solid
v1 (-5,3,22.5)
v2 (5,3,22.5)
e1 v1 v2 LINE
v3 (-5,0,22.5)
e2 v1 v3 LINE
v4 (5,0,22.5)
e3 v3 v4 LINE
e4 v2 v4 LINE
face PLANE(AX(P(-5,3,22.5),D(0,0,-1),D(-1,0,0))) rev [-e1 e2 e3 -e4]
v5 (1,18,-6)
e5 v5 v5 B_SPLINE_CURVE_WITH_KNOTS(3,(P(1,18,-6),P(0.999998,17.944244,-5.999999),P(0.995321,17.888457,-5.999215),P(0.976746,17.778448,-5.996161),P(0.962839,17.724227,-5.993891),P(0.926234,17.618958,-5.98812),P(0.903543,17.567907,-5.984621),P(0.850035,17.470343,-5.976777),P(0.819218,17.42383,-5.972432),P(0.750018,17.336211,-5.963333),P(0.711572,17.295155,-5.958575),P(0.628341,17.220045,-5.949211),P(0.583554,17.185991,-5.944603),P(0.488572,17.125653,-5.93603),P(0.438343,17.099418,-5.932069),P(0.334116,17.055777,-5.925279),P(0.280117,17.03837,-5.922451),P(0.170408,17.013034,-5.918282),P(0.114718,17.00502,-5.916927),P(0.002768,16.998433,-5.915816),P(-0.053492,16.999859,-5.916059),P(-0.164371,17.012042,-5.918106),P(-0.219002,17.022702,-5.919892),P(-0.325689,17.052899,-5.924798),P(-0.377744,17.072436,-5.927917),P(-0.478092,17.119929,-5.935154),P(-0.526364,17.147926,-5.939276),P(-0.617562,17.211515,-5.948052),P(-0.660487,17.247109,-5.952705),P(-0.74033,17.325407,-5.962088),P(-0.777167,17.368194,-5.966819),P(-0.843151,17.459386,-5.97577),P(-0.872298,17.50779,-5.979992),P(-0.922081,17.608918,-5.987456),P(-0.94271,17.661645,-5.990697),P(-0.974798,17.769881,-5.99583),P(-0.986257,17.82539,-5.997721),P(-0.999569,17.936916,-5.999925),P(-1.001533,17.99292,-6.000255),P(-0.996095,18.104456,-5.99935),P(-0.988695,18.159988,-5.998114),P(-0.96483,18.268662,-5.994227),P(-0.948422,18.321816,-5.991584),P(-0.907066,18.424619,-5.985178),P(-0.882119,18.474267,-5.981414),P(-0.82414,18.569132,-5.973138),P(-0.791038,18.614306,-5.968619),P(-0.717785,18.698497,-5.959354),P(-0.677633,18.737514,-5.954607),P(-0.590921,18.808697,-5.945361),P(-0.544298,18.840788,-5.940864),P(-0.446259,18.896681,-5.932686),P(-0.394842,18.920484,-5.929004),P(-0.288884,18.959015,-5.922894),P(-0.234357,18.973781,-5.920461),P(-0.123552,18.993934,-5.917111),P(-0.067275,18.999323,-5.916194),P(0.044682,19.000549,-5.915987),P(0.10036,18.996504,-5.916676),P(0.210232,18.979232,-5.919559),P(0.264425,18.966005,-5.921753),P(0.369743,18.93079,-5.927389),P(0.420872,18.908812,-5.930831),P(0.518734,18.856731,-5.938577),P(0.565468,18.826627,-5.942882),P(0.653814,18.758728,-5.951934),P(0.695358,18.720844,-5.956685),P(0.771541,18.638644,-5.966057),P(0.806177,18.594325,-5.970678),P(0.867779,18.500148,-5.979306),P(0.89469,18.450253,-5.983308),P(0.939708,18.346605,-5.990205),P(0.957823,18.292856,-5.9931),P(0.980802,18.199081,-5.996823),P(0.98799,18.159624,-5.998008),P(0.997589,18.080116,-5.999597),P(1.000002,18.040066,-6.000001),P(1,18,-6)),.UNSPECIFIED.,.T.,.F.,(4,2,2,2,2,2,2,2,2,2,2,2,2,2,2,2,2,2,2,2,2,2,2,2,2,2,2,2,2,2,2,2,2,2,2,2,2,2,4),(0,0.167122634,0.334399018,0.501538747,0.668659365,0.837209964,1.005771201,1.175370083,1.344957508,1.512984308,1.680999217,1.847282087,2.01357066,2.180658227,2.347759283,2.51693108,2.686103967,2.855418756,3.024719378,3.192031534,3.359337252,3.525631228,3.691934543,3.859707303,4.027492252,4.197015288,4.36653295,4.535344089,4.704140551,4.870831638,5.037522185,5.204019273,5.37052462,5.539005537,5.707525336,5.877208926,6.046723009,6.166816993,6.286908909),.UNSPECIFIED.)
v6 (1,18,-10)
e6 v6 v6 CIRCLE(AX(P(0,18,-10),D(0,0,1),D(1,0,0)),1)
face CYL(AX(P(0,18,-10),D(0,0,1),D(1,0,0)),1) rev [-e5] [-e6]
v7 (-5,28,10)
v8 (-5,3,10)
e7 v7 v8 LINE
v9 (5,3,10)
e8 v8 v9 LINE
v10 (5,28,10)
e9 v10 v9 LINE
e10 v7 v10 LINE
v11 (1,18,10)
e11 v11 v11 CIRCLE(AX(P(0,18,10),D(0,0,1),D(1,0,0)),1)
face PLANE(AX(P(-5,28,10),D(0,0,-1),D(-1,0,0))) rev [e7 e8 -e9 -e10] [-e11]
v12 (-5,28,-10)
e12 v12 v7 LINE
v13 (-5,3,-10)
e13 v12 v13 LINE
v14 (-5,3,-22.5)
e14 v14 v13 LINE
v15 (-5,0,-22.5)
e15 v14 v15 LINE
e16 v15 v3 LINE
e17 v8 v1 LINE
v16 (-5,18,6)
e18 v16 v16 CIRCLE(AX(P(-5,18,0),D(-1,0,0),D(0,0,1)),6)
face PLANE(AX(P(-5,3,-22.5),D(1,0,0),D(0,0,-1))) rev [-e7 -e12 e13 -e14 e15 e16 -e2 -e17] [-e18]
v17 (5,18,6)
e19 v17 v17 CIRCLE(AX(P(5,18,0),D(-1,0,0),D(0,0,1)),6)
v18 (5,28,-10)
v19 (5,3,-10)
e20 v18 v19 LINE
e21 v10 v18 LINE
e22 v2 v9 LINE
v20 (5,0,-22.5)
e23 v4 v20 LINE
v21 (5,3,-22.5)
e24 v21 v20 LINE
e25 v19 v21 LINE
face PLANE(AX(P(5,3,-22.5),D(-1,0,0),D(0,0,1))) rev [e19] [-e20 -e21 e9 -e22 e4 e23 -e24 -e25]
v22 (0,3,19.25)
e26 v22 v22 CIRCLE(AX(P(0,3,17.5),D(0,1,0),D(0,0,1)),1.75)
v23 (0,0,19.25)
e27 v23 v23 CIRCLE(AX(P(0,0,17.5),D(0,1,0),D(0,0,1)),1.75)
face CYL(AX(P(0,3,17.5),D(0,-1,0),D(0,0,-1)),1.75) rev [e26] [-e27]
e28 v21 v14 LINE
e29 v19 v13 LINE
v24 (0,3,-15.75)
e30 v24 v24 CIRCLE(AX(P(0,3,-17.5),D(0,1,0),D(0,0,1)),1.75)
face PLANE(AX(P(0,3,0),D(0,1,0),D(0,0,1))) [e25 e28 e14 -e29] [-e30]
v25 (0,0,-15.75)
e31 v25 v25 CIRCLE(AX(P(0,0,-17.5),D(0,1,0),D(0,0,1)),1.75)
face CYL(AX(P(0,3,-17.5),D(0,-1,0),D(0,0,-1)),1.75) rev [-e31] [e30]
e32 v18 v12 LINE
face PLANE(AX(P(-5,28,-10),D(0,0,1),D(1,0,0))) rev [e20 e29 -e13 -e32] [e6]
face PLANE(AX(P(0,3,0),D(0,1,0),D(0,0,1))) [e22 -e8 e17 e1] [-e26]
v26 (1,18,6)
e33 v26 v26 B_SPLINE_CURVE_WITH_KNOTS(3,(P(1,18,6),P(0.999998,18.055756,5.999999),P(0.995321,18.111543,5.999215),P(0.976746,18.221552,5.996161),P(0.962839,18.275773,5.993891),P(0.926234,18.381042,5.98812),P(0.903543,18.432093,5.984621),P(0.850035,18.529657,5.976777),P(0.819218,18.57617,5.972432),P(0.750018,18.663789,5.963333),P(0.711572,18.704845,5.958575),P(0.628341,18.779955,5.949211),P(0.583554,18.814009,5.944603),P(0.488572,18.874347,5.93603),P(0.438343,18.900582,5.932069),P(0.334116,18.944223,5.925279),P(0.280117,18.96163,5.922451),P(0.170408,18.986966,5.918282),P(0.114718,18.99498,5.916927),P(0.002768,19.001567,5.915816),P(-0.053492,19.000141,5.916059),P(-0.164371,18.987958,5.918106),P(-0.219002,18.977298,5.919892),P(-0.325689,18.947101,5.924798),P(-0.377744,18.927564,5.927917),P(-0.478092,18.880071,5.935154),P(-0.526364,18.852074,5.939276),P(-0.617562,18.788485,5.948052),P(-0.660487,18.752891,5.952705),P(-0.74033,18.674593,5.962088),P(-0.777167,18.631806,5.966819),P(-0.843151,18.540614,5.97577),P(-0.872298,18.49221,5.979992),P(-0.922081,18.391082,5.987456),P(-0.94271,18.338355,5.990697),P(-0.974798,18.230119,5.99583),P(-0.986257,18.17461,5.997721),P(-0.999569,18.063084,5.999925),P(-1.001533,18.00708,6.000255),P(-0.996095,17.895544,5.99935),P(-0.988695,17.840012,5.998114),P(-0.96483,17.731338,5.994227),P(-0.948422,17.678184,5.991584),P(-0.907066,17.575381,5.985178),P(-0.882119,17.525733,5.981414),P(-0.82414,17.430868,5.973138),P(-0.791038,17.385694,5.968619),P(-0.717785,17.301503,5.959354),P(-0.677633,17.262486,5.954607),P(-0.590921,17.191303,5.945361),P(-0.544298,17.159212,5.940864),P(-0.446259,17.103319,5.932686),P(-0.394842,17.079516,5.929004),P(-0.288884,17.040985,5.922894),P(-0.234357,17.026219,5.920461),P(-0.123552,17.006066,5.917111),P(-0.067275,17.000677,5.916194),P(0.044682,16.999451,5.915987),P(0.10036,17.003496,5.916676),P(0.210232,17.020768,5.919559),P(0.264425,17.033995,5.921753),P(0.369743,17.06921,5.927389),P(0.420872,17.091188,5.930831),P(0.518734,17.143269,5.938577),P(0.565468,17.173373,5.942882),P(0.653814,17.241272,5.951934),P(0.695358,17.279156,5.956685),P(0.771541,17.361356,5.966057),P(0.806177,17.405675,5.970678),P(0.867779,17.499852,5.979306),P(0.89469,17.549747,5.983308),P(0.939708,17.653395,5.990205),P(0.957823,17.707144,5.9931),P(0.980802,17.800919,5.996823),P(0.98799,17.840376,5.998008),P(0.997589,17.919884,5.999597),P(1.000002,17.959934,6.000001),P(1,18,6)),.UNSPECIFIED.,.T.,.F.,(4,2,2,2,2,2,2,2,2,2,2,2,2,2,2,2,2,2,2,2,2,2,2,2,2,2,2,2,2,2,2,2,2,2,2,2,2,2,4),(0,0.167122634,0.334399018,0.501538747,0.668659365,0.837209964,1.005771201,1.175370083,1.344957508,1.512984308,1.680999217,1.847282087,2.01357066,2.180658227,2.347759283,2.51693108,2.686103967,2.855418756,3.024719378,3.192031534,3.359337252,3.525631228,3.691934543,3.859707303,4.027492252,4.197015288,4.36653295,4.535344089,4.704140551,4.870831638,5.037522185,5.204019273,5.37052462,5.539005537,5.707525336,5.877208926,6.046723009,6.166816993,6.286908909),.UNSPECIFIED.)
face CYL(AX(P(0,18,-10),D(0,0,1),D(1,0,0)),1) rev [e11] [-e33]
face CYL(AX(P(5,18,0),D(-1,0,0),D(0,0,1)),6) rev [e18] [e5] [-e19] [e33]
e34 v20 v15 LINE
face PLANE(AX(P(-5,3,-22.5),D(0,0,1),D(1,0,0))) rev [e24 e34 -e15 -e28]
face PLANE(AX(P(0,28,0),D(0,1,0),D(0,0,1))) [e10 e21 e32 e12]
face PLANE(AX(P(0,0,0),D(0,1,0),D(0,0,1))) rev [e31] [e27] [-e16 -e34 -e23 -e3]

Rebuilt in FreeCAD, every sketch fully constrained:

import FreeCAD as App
import Part
import Sketcher
Q = App.Units.Quantity

doc = App.newDocument("Part")
body = doc.addObject("PartDesign::Body", "Body")

# Sketch on XZ plane
sketch1 = body.newObject("Sketcher::SketchObject", "Sketch")
sketch1.AttachmentSupport = (doc.getObject("XZ_Plane"), [""])
sketch1.MapMode = "FlatFace"
sketch1.addGeometry([
    Part.LineSegment(App.Vector(-5, -22.5, 0), App.Vector(-5, 22.5, 0)),  # 0
    Part.LineSegment(App.Vector(-5, 22.5, 0), App.Vector(5, 22.5, 0)),  # 1
    Part.LineSegment(App.Vector(5, 22.5, 0), App.Vector(5, -22.5, 0)),  # 2
    Part.LineSegment(App.Vector(5, -22.5, 0), App.Vector(-5, -22.5, 0)),  # 3
    Part.Circle(App.Vector(0, 17.5, 0), App.Vector(0, 0, 1), 1.8),  # 4
    Part.Circle(App.Vector(0, -17.5, 0), App.Vector(0, 0, 1), 1.8),  # 5
], False)
sketch1.addConstraint([
    Sketcher.Constraint("Coincident", 0, 2, 1, 1),
    Sketcher.Constraint("Coincident", 1, 2, 2, 1),
    Sketcher.Constraint("Coincident", 2, 2, 3, 1),
    Sketcher.Constraint("Coincident", 3, 2, 0, 1),
    Sketcher.Constraint("Vertical", 0),
    Sketcher.Constraint("Horizontal", 1),
    Sketcher.Constraint("Vertical", 2),
    Sketcher.Constraint("Horizontal", 3),
    Sketcher.Constraint("Equal", 4, 5),
    Sketcher.Constraint("Symmetric", 4, 3, 5, 3, -1, 1),
    Sketcher.Constraint("Symmetric", 0, 2, 2, 2, -1, 1),
    Sketcher.Constraint("PointOnObject", 4, 3, -2),
    Sketcher.Constraint("Diameter", 4, Q("3.5 mm")),
    Sketcher.Constraint("DistanceX", 1, 1, 1, 2, Q("10 mm")),
    Sketcher.Constraint("DistanceY", 0, 1, 0, 2, Q("45 mm")),
    Sketcher.Constraint("DistanceY", 5, 3, 4, 3, Q("35 mm")),
])
pad1 = body.newObject("PartDesign::Pad", "Pad")
pad1.Profile = sketch1
pad1.Length = 3
pad1.Reversed = True

# Sketch on XZ plane
sketch2 = body.newObject("Sketcher::SketchObject", "Sketch001")
sketch2.AttachmentSupport = (doc.getObject("XZ_Plane"), [""])
sketch2.MapMode = "FlatFace"
sketch2.AttachmentOffset = App.Placement(App.Vector(0, 0, -3), App.Rotation())
sketch2.addGeometry([
    Part.LineSegment(App.Vector(-5, -10, 0), App.Vector(-5, 10, 0)),
    Part.LineSegment(App.Vector(-5, 10, 0), App.Vector(5, 10, 0)),
    Part.LineSegment(App.Vector(5, 10, 0), App.Vector(5, -10, 0)),
    Part.LineSegment(App.Vector(5, -10, 0), App.Vector(-5, -10, 0)),
], False)
sketch2.addConstraint([
    Sketcher.Constraint("Coincident", 0, 2, 1, 1),
    Sketcher.Constraint("Coincident", 1, 2, 2, 1),
    Sketcher.Constraint("Coincident", 2, 2, 3, 1),
    Sketcher.Constraint("Coincident", 3, 2, 0, 1),
    Sketcher.Constraint("Vertical", 0),
    Sketcher.Constraint("Horizontal", 1),
    Sketcher.Constraint("Vertical", 2),
    Sketcher.Constraint("Horizontal", 3),
    Sketcher.Constraint("Symmetric", 0, 2, 2, 2, -1, 1),
    Sketcher.Constraint("DistanceX", 1, 1, 1, 2, Q("10 mm")),
    Sketcher.Constraint("DistanceY", 0, 1, 0, 2, Q("20 mm")),
])
pad2 = body.newObject("PartDesign::Pad", "Pad001")
pad2.Profile = sketch2
pad2.Length = 25
pad2.Reversed = True

# Sketch on YZ plane
sketch3 = body.newObject("Sketcher::SketchObject", "Sketch002")
sketch3.AttachmentSupport = (doc.getObject("YZ_Plane"), [""])
sketch3.MapMode = "FlatFace"
sketch3.AttachmentOffset = App.Placement(App.Vector(0, 0, -5), App.Rotation())
sketch3.addGeometry(Part.Circle(App.Vector(18, 0, 0), App.Vector(0, 0, 1), 6), False)
sketch3.addConstraint([
    Sketcher.Constraint("PointOnObject", 0, 3, -1),
    Sketcher.Constraint("Diameter", 0, Q("12 mm")),
    Sketcher.Constraint("DistanceX", -1, 1, 0, 3, Q("18 mm")),
])
pocket1 = body.newObject("PartDesign::Pocket", "Pocket")
pocket1.Profile = sketch3
pocket1.Length = 10
pocket1.Reversed = True

# Sketch on XY plane
sketch4 = body.newObject("Sketcher::SketchObject", "Sketch003")
sketch4.AttachmentSupport = (doc.getObject("XY_Plane"), [""])
sketch4.MapMode = "FlatFace"
sketch4.AttachmentOffset = App.Placement(App.Vector(0, 0, 10), App.Rotation())
sketch4.addGeometry(Part.Circle(App.Vector(0, 18, 0), App.Vector(0, 0, 1), 1), False)
sketch4.addConstraint([
    Sketcher.Constraint("PointOnObject", 0, 3, -2),
    Sketcher.Constraint("Diameter", 0, Q("2 mm")),
    Sketcher.Constraint("DistanceY", -1, 1, 0, 3, Q("18 mm")),
])
pocket2 = body.newObject("PartDesign::Pocket", "Pocket001")
pocket2.Profile = sketch4
pocket2.Length = 20

doc.recompute()
